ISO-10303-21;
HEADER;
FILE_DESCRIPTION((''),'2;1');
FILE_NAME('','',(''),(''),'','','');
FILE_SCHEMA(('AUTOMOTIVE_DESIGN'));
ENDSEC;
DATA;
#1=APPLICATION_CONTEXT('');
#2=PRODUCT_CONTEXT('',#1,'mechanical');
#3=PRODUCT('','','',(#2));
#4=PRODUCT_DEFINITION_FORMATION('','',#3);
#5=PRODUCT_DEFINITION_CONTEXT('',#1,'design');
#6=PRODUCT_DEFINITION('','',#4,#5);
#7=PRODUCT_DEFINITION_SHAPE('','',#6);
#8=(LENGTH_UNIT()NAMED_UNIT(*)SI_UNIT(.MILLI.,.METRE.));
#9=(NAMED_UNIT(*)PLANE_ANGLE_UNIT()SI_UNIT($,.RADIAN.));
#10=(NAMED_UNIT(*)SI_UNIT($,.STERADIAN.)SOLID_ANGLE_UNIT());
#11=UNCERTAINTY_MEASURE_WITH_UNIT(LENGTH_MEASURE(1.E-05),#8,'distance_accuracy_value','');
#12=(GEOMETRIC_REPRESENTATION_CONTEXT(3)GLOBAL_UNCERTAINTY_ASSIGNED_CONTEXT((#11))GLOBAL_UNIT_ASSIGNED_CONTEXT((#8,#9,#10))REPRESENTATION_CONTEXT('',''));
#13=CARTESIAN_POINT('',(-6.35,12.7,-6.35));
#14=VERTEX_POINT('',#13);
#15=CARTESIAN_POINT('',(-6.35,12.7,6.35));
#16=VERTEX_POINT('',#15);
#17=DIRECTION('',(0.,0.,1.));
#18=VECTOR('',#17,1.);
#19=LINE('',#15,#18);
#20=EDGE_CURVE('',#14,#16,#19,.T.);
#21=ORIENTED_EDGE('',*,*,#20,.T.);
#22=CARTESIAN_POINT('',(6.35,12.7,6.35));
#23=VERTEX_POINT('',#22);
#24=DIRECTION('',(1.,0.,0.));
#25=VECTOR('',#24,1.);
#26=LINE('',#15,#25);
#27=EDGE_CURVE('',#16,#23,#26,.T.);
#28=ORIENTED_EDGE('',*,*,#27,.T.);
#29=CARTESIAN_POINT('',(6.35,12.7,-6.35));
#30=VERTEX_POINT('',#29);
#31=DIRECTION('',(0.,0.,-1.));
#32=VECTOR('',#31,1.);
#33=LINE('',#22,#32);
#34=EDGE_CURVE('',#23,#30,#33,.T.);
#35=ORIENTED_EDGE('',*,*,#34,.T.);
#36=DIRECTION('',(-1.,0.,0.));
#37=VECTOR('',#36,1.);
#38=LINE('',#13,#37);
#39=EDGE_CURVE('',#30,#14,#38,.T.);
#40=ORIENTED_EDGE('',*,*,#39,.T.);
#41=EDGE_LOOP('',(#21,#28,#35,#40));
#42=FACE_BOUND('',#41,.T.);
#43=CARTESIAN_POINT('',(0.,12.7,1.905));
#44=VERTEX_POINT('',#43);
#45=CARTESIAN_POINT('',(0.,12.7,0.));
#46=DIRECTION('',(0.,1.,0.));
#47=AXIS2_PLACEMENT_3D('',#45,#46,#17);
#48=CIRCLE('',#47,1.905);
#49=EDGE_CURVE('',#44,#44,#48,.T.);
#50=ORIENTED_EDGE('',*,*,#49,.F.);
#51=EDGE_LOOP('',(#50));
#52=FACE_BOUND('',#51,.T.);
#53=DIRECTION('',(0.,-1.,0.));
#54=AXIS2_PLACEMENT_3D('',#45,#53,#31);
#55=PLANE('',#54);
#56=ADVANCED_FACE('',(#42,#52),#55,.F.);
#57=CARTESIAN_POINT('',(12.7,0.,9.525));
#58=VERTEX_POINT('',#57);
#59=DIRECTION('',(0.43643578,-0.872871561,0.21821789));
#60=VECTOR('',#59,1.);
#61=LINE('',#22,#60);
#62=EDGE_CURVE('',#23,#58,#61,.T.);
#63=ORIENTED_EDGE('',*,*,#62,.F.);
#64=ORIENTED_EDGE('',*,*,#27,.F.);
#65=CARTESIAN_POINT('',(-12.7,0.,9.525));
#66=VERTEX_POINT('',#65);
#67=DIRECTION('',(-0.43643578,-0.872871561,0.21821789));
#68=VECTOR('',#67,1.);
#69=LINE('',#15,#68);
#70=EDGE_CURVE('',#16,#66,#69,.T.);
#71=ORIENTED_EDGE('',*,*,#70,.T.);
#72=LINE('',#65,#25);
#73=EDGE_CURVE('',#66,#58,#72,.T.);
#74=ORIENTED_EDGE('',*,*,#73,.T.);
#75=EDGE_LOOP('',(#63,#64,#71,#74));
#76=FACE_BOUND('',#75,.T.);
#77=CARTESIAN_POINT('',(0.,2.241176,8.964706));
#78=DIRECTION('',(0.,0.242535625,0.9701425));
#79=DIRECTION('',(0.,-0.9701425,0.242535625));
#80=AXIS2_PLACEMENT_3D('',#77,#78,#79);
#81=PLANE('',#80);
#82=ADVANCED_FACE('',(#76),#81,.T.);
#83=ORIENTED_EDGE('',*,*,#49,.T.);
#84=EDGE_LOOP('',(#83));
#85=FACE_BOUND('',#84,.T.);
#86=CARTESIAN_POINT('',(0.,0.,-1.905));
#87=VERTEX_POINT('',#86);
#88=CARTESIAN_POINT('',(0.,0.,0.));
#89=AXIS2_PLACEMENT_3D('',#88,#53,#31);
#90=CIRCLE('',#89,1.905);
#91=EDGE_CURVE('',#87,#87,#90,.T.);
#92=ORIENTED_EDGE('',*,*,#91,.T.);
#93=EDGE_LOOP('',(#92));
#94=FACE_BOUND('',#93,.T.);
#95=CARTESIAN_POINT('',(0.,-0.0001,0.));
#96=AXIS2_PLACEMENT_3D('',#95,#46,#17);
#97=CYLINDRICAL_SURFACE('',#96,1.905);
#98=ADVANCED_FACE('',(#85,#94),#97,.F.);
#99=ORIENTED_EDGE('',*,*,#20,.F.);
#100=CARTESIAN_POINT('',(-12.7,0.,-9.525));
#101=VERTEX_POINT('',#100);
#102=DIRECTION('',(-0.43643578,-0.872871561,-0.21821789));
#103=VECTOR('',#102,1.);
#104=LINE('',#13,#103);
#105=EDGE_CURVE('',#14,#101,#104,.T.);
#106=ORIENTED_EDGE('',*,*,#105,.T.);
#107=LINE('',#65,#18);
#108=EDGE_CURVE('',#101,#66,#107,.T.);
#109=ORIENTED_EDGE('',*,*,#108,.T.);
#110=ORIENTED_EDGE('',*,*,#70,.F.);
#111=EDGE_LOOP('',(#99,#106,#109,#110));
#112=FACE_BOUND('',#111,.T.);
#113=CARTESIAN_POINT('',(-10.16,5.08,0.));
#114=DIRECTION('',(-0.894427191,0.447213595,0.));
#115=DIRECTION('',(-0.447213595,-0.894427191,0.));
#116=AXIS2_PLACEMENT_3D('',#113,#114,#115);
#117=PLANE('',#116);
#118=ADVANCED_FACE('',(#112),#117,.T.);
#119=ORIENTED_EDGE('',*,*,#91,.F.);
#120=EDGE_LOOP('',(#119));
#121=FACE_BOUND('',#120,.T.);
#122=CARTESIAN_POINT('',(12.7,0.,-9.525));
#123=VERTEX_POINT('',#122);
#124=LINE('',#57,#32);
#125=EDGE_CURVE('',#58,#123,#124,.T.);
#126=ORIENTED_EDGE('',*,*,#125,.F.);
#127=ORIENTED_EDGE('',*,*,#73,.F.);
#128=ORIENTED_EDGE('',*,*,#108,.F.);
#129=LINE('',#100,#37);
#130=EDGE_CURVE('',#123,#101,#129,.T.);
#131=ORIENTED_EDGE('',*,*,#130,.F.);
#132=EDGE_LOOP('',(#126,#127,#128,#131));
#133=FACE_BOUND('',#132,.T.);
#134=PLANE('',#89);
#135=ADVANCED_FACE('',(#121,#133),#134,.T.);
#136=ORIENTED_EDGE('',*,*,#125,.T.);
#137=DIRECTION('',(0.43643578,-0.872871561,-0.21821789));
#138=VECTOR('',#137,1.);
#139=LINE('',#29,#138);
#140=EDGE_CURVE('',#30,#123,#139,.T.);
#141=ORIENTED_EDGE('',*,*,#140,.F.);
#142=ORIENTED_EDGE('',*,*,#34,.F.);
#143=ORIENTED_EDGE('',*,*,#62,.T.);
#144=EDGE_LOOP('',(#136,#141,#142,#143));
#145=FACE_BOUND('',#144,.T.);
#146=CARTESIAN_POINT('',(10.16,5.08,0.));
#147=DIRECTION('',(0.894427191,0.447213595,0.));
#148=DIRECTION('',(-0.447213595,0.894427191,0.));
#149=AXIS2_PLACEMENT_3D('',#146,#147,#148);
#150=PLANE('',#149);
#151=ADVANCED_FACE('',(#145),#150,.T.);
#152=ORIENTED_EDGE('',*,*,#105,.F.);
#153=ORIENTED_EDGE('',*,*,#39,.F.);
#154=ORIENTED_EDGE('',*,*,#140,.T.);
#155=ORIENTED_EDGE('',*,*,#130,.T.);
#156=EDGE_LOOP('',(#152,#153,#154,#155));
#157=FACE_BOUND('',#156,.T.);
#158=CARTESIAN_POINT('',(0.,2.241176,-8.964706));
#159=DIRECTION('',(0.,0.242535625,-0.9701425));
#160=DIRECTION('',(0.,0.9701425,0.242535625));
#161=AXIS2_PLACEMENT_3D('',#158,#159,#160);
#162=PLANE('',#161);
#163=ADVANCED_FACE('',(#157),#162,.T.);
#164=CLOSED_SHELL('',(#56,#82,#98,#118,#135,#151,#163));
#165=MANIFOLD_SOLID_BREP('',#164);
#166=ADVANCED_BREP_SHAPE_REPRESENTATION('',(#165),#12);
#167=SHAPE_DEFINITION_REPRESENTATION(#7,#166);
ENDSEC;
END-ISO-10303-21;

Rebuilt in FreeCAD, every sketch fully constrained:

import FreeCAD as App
import Part
import Sketcher

V = App.Vector
Q = App.Units.Quantity


def add_polygon(sketch, points):
    """Adds a closed chain of lines whose ends are joined by coincident constraints."""
    first, n = sketch.GeometryCount, len(points)
    for a, b in zip(points, points[1:] + points[:1]):
        sketch.addGeometry(Part.LineSegment(App.Vector(*a, 0), App.Vector(*b, 0)), False)
    for i in range(n):
        sketch.addConstraint(Sketcher.Constraint("Coincident", first + i, 2, first + (i + 1) % n, 1))

doc = App.newDocument("Part")
params = doc.addObject("Spreadsheet::Sheet", "Params")
for row, (alias, value) in enumerate([
    ("sketch1_width", "0.5 in"),
    ("sketch2_width", "1 in"),
    ("sketch2_height", "0.75 in"),
    ("sketch3_diameter", "0.15 in"),
], start=1):
    params.set(f"A{row}", alias)
    params.set(f"B{row}", "=" + value)
    params.setAlias(f"B{row}", alias)

body = doc.addObject("PartDesign::Body", "Body")

# Sketch on XZ plane
sketch1 = doc.addObject("Sketcher::SketchObject", "Sketch")
body.addObject(sketch1)
sketch1.AttachmentSupport = (doc.XZ_Plane, [""])
sketch1.MapMode = "FlatFace"
sketch1.AttachmentOffset = App.Placement(V(0, 0, -0.5 * 25.4), App.Rotation())
add_polygon(sketch1, [(-6.35, 6.35), (6.35, 6.35), (6.35, -6.35), (-6.35, -6.35)])  # lines 0-3
sketch1.addConstraint(Sketcher.Constraint("Horizontal", 0))
sketch1.addConstraint(Sketcher.Constraint("Vertical", 1))
sketch1.addConstraint(Sketcher.Constraint("Horizontal", 2))
sketch1.addConstraint(Sketcher.Constraint("Vertical", 3))
sketch1.addConstraint(Sketcher.Constraint("Symmetric", 0, 2, 2, 2, -1, 1))
sketch1.addConstraint(Sketcher.Constraint("Equal", 2, 1))
sketch1.addConstraint(Sketcher.Constraint("DistanceX", 0, 1, 0, 2, Q("0.5 in")))
sketch1.setExpression("Constraints[10]", "Params.sketch1_width")

# Sketch on XZ plane
sketch2 = doc.addObject("Sketcher::SketchObject", "Sketch001")
body.addObject(sketch2)
sketch2.AttachmentSupport = (doc.XZ_Plane, [""])
sketch2.MapMode = "FlatFace"
add_polygon(sketch2, [(-12.7, 9.525), (12.7, 9.525), (12.7, -9.525), (-12.7, -9.525)])  # lines 0-3
sketch2.addConstraint(Sketcher.Constraint("Horizontal", 0))
sketch2.addConstraint(Sketcher.Constraint("Vertical", 1))
sketch2.addConstraint(Sketcher.Constraint("Horizontal", 2))
sketch2.addConstraint(Sketcher.Constraint("Vertical", 3))
sketch2.addConstraint(Sketcher.Constraint("Symmetric", 0, 2, 2, 2, -1, 1))
sketch2.addConstraint(Sketcher.Constraint("DistanceX", 0, 1, 0, 2, Q("1 in")))
sketch2.addConstraint(Sketcher.Constraint("DistanceY", 1, 2, 1, 1, Q("0.75 in")))
sketch2.setExpression("Constraints[9]", "Params.sketch2_width")
sketch2.setExpression("Constraints[10]", "Params.sketch2_height")

additiveloft = doc.addObject("PartDesign::AdditiveLoft", "AdditiveLoft")
body.addObject(additiveloft)
additiveloft.Profile = sketch1
additiveloft.Sections = [sketch2]

# Sketch on XZ plane
sketch3 = doc.addObject("Sketcher::SketchObject", "Sketch002")
body.addObject(sketch3)
sketch3.AttachmentSupport = (doc.XZ_Plane, [""])
sketch3.MapMode = "FlatFace"
sketch3.AttachmentOffset = App.Placement(V(0, 0, -0.5 * 25.4), App.Rotation())
sketch3.addGeometry(Part.Circle(V(0, 0, 0), V(0, 0, 1), 1.905), False)
sketch3.addConstraint(Sketcher.Constraint("Coincident", 0, 3, -1, 1))
sketch3.addConstraint(Sketcher.Constraint("Diameter", 0, Q("0.15 in")))
sketch3.setExpression("Constraints[1]", "Params.sketch3_diameter")
pocket1 = doc.addObject("PartDesign::Pocket", "Pocket")
body.addObject(pocket1)
pocket1.Profile = sketch3
pocket1.Type = "ThroughAll"
pocket1.Reversed = True

doc.recompute()
